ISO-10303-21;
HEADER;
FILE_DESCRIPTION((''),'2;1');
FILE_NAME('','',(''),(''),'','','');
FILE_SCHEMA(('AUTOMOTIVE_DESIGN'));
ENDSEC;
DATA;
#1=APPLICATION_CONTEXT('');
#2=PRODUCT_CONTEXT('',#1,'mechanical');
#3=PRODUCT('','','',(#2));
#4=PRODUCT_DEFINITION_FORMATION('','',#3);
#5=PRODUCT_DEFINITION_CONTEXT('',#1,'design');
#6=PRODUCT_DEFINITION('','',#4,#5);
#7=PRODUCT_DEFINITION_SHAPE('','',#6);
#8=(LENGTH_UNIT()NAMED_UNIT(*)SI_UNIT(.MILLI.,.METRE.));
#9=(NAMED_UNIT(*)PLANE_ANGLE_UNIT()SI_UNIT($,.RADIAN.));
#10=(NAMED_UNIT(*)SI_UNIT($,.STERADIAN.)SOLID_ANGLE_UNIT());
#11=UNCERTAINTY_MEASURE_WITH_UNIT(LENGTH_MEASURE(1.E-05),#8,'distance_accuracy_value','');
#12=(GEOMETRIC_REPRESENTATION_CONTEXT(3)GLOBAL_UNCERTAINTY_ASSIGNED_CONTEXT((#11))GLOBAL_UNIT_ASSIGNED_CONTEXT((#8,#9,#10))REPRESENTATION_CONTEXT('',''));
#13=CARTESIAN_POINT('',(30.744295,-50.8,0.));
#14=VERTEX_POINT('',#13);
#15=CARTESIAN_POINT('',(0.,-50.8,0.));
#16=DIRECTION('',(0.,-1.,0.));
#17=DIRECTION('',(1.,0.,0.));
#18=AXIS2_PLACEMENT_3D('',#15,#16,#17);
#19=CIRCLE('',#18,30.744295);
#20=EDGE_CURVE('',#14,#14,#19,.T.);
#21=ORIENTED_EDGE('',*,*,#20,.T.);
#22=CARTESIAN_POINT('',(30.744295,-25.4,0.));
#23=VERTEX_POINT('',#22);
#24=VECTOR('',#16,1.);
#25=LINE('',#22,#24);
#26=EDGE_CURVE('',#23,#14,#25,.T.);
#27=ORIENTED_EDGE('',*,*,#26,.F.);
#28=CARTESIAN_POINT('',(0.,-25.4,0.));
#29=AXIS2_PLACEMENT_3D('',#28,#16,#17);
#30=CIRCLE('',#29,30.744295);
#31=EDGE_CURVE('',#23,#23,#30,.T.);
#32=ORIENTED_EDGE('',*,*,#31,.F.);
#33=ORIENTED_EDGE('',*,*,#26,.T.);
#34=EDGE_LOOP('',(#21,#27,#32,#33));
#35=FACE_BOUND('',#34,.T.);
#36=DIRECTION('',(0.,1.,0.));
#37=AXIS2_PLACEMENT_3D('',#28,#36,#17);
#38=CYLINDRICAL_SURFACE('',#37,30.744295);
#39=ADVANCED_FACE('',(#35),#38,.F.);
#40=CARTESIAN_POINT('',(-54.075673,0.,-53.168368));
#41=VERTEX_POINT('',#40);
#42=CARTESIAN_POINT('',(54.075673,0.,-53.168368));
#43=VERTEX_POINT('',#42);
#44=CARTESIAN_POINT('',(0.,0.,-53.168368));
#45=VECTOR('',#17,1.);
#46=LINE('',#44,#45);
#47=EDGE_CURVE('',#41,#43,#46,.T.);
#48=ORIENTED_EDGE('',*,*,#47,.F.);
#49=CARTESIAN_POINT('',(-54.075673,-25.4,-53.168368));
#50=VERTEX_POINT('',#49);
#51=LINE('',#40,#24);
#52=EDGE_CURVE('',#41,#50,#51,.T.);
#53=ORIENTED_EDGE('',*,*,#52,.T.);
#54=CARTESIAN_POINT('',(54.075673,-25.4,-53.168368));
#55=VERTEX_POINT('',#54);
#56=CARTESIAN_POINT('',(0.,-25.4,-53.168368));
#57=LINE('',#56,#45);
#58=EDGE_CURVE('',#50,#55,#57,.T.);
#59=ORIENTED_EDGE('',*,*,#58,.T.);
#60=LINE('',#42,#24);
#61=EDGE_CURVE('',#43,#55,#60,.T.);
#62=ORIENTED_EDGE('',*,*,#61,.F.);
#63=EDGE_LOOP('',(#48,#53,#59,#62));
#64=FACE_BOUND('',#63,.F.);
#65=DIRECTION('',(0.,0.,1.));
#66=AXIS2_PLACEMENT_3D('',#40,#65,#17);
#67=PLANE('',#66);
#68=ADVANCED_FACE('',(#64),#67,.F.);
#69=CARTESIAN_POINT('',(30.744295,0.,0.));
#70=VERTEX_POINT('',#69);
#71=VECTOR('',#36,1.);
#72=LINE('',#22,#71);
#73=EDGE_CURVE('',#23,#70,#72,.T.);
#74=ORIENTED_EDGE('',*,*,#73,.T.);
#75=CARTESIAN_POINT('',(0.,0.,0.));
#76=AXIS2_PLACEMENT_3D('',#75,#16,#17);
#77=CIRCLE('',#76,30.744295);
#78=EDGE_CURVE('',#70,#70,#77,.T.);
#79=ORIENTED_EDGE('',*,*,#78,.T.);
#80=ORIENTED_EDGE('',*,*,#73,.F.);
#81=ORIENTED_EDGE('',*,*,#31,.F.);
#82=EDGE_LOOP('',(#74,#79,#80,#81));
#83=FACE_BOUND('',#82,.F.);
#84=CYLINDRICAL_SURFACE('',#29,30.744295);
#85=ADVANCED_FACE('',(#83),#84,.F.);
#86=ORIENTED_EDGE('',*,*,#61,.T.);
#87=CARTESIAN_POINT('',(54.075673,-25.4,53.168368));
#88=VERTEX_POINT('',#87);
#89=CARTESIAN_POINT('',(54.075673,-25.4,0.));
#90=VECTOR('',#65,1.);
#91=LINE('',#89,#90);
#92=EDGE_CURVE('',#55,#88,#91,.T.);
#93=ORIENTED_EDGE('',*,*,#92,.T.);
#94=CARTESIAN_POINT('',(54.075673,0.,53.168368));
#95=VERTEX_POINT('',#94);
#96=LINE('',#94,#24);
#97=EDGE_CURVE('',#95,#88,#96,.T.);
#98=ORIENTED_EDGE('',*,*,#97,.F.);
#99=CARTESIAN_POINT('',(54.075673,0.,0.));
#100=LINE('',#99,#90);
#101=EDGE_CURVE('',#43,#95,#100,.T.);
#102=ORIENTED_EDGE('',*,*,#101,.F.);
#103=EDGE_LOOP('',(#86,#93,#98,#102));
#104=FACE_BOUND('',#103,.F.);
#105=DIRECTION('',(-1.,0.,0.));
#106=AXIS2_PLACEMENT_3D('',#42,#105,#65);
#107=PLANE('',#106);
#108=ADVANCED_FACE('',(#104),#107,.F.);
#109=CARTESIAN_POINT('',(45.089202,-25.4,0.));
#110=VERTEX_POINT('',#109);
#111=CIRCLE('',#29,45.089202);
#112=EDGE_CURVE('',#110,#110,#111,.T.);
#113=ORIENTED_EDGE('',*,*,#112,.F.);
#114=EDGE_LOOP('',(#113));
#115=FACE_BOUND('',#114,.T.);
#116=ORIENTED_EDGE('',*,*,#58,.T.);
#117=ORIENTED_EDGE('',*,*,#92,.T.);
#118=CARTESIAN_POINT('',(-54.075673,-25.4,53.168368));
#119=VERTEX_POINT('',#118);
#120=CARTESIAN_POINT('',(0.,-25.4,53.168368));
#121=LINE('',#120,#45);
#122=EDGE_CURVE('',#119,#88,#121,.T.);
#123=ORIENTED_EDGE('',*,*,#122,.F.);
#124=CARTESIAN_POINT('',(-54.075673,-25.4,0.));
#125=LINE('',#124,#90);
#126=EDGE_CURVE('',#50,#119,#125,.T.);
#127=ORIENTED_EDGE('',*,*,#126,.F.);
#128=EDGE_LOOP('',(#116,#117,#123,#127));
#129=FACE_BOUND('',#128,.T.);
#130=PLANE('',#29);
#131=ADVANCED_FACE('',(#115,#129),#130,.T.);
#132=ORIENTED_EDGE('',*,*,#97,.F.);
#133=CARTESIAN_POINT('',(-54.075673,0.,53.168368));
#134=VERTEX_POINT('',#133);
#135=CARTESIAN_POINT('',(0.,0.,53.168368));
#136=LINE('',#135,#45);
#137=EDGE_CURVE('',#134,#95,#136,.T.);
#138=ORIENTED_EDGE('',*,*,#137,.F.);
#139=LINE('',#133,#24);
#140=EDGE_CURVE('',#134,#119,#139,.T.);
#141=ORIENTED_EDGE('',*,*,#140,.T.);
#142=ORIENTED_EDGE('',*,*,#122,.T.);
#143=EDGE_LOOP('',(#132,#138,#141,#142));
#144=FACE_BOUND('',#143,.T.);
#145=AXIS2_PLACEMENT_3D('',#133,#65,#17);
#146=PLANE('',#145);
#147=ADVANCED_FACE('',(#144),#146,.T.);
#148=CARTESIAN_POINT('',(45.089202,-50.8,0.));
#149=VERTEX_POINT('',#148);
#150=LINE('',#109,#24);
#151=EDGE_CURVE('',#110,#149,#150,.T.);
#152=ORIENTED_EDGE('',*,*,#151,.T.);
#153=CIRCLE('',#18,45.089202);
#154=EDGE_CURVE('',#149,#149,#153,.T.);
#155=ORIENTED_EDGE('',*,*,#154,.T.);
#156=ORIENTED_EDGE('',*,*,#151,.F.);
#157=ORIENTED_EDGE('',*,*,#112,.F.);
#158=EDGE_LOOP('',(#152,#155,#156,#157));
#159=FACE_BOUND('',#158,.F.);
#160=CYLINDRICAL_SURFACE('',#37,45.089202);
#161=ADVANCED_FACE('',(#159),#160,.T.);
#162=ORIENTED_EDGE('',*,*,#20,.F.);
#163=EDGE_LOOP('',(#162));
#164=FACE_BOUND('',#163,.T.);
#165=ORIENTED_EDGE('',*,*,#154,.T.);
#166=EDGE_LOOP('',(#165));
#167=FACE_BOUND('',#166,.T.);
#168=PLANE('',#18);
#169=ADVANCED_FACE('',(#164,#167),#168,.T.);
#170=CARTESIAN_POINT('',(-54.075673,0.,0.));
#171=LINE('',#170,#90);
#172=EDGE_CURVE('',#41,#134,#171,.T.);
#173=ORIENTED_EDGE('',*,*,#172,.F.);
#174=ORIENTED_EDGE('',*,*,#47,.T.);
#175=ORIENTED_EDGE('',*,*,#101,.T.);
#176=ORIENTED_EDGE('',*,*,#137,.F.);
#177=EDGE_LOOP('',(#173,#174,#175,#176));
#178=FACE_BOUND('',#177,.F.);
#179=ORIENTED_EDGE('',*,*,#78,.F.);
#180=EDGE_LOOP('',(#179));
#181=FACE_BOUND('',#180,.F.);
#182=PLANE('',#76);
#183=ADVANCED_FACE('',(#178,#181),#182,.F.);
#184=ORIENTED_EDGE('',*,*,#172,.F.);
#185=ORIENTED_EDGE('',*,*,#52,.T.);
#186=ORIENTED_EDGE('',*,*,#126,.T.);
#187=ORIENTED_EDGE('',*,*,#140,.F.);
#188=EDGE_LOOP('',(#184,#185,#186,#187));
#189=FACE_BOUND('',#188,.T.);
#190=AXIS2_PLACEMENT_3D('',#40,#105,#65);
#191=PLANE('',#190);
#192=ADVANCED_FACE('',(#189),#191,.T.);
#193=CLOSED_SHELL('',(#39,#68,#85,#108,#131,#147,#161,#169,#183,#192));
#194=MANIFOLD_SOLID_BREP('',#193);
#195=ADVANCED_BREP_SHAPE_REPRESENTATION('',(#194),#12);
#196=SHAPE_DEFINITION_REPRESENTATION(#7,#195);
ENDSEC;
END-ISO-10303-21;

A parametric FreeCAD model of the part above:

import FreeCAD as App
import Part
import Sketcher
Q = App.Units.Quantity


def add_polygon(sketch, points):
    """Adds a closed chain of lines whose ends are joined by coincident constraints."""
    first, n = sketch.GeometryCount, len(points)
    for a, b in zip(points, points[1:] + points[:1]):
        sketch.addGeometry(Part.LineSegment(App.Vector(*a, 0), App.Vector(*b, 0)), False)
    for i in range(n):
        sketch.addConstraint(Sketcher.Constraint("Coincident", first + i, 2, first + (i + 1) % n, 1))

doc = App.newDocument("Part")
body = doc.addObject("PartDesign::Body", "Body")

sketch1 = body.newObject("Sketcher::SketchObject", "Sketch")
sketch1.AttachmentSupport = (doc.getObject("XZ_Plane"), [""])
sketch1.MapMode = "FlatFace"
add_polygon(sketch1, [(-54, 53), (-54, -53), (54, -53), (54, 53)])
sketch1.addConstraint([
    Sketcher.Constraint("Vertical", 0),
    Sketcher.Constraint("Horizontal", 1),
    Sketcher.Constraint("Vertical", 2),
    Sketcher.Constraint("Horizontal", 3),
    Sketcher.Constraint("Symmetric", 0, 2, 2, 2, -1, 1),
    Sketcher.Constraint("DistanceX", 1, 1, 1, 2, Q("108.151346 mm")),
    Sketcher.Constraint("DistanceY", 0, 2, 0, 1, Q("106.336735 mm")),
])
pad1 = body.newObject("PartDesign::Pad", "Pad")
pad1.Profile = sketch1
pad1.Length = Q("1 in")

sketch2 = body.newObject("Sketcher::SketchObject", "Sketch001")
sketch2.AttachmentSupport = (doc.getObject("XZ_Plane"), [""])
sketch2.MapMode = "FlatFace"
sketch2.AttachmentOffset = App.Placement(App.Vector(0, 0, 1 * 25.4), App.Rotation())
sketch2.addGeometry(Part.Circle(App.Vector(0, 0, 0), App.Vector(0, 0, 1), 31), False)
sketch2.addConstraint([
    Sketcher.Constraint("Coincident", 0, 3, -1, 1),
    Sketcher.Constraint("Diameter", 0, Q("61.488591 mm")),
])
pocket1 = body.newObject("PartDesign::Pocket", "Pocket")
pocket1.Profile = sketch2
pocket1.Type = "ThroughAll"

sketch3 = body.newObject("Sketcher::SketchObject", "Sketch002")
sketch3.AttachmentSupport = (doc.getObject("XZ_Plane"), [""])
sketch3.MapMode = "FlatFace"
sketch3.AttachmentOffset = App.Placement(App.Vector(0, 0, 1 * 25.4), App.Rotation())
sketch3.addGeometry([
    Part.Circle(App.Vector(0, 0, 0), App.Vector(0, 0, 1), 45),
    Part.Circle(App.Vector(0, 0, 0), App.Vector(0, 0, 1), 31),
], False)
sketch3.addConstraint([
    Sketcher.Constraint("Coincident", 0, 3, -1, 1),
    Sketcher.Constraint("Coincident", 1, 3, -1, 1),
    Sketcher.Constraint("Diameter", 1, Q("61.488591 mm")),
    Sketcher.Constraint("Diameter", 0, Q("90.178404 mm")),
])
pad2 = body.newObject("PartDesign::Pad", "Pad001")
pad2.Profile = sketch3
pad2.Length = Q("1 in")

doc.recompute()
